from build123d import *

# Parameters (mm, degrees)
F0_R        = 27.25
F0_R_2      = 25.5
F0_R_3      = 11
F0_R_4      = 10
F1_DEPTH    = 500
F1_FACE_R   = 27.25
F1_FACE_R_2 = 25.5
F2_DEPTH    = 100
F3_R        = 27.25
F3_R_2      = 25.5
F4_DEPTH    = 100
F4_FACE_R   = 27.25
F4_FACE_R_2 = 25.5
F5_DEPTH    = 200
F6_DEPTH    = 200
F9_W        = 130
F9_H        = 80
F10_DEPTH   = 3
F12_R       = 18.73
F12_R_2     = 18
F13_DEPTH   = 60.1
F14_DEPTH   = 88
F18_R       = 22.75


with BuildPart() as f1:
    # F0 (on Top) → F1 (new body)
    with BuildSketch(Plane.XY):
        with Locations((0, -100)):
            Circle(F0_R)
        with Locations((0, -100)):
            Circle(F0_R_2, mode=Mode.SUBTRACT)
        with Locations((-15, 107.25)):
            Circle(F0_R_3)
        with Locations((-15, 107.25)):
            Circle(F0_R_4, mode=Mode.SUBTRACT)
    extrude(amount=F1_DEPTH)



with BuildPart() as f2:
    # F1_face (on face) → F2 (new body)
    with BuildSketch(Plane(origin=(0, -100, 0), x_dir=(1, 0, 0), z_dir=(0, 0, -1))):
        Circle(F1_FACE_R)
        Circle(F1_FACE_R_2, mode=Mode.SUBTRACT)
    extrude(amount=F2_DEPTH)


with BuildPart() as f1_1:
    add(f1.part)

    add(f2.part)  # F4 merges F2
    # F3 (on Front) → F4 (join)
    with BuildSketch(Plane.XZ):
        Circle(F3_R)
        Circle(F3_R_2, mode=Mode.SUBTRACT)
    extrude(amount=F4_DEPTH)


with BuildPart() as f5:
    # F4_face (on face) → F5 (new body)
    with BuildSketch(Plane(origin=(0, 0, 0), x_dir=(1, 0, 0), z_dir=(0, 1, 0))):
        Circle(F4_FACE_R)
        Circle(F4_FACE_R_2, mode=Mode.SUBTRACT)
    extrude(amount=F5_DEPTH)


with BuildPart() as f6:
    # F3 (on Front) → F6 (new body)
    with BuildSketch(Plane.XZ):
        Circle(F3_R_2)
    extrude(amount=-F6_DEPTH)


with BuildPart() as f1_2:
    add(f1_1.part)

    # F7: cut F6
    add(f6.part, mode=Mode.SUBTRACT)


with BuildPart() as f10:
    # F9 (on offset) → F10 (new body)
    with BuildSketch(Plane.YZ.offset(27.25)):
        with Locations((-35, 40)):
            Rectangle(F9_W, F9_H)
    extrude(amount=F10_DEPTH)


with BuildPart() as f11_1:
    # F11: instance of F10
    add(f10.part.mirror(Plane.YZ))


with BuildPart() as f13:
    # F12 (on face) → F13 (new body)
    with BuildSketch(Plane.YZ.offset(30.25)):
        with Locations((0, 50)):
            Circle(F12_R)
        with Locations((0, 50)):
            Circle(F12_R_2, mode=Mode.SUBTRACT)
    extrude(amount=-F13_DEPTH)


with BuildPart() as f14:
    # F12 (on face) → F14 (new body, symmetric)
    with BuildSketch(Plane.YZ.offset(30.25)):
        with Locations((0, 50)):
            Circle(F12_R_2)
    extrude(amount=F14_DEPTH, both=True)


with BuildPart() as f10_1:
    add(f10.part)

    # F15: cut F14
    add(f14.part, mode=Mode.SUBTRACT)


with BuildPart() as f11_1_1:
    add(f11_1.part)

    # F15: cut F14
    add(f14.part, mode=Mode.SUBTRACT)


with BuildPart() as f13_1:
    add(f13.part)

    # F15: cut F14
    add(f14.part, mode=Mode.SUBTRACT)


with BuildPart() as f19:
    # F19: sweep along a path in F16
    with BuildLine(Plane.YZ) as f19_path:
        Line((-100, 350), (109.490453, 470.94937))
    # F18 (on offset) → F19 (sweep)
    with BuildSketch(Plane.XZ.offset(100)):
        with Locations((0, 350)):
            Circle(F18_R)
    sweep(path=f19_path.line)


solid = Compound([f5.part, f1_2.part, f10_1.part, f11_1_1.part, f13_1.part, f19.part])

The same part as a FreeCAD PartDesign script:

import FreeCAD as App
import Part
import Sketcher
from FreeCAD import Vector
Q = App.Units.Quantity


def add_polygon(sketch, points):
    """Adds a closed chain of lines whose ends are joined by coincident constraints."""
    first, n = sketch.GeometryCount, len(points)
    for a, b in zip(points, points[1:] + points[:1]):
        sketch.addGeometry(Part.LineSegment(App.Vector(*a, 0), App.Vector(*b, 0)), False)
    for i in range(n):
        sketch.addConstraint(Sketcher.Constraint("Coincident", first + i, 2, first + (i + 1) % n, 1))

doc = App.newDocument("Part")
body = doc.addObject("PartDesign::Body", "Body")
body.AllowCompound = True

# Sketch on XY plane
sketch1 = doc.addObject("Sketcher::SketchObject", "Sketch")
body.addObject(sketch1)
sketch1.AttachmentSupport = (doc.XY_Plane, [""])
sketch1.MapMode = "FlatFace"
sketch1.addGeometry([
    Part.Circle(Vector(0, -100, 0), Vector(0, 0, 1), 27),
    Part.Circle(Vector(0, -100, 0), Vector(0, 0, 1), 26),
    Part.Circle(Vector(-15, 107, 0), Vector(0, 0, 1), 11),
    Part.Circle(Vector(-15, 107, 0), Vector(0, 0, 1), 10),
], False)
sketch1.addConstraint([
    Sketcher.Constraint("Coincident", 1, 3, 0, 3),
    Sketcher.Constraint("Coincident", 3, 3, 2, 3),
    Sketcher.Constraint("PointOnObject", 0, 3, -2),
    Sketcher.Constraint("Diameter", 1, Q("51 mm")),
    Sketcher.Constraint("Diameter", 2, Q("22 mm")),
    Sketcher.Constraint("Diameter", 3, Q("20 mm")),
    Sketcher.Constraint("Diameter", 0, Q("54.5 mm")),
    Sketcher.Constraint("DistanceY", 0, 3, -1, 1, Q("100 mm")),
    Sketcher.Constraint("DistanceX", 2, 3, -1, 1, Q("15 mm")),
    Sketcher.Constraint("DistanceY", -1, 1, 2, 3, Q("107.25 mm")),
])
pad1 = doc.addObject("PartDesign::Pad", "Pad")
body.addObject(pad1)
pad1.Profile = sketch1
pad1.Length = 500
body2 = doc.addObject("PartDesign::Body", "Body001")

# Sketch on XY plane
sketch2 = doc.addObject("Sketcher::SketchObject", "Sketch001")
body2.addObject(sketch2)
sketch2.AttachmentSupport = (doc.getObject("XY_Plane001"), [""])
sketch2.MapMode = "FlatFace"
sketch2.addGeometry([
    Part.Circle(Vector(0, -100, 0), Vector(0, 0, 1), 27),
    Part.Circle(Vector(0, -100, 0), Vector(0, 0, 1), 26),
], False)
sketch2.addConstraint([
    Sketcher.Constraint("Coincident", 1, 3, 0, 3),
    Sketcher.Constraint("PointOnObject", 0, 3, -2),
    Sketcher.Constraint("Diameter", 1, Q("51 mm")),
    Sketcher.Constraint("Diameter", 0, Q("54.5 mm")),
    Sketcher.Constraint("DistanceY", 0, 3, -1, 1, Q("100 mm")),
])
pad2 = doc.addObject("PartDesign::Pad", "Pad001")
body2.addObject(pad2)
pad2.Profile = sketch2
pad2.Length = 100
pad2.Reversed = True
body.AllowCompound = True
doc.recompute()

boolean = doc.addObject("PartDesign::Boolean", "Boolean")
body.addObject(boolean)
boolean.Type = "Fuse"
boolean.addObjects([body2])

# Sketch on XZ plane
sketch3 = doc.addObject("Sketcher::SketchObject", "Sketch002")
body.addObject(sketch3)
sketch3.AttachmentSupport = (doc.XZ_Plane, [""])
sketch3.MapMode = "FlatFace"
sketch3.addGeometry([
    Part.Circle(Vector(0, 0, 0), Vector(0, 0, 1), 27),
    Part.Circle(Vector(0, 0, 0), Vector(0, 0, 1), 26),
], False)
sketch3.addConstraint([
    Sketcher.Constraint("Coincident", 0, 3, -1, 1),
    Sketcher.Constraint("Coincident", 1, 3, -1, 1),
    Sketcher.Constraint("Diameter", 1, Q("51 mm")),
    Sketcher.Constraint("Diameter", 0, Q("54.5 mm")),
])
pad3 = doc.addObject("PartDesign::Pad", "Pad002")
body.addObject(pad3)
pad3.Profile = sketch3
pad3.Length = 100
body3 = doc.addObject("PartDesign::Body", "Body002")

# Sketch on XZ plane
sketch4 = doc.addObject("Sketcher::SketchObject", "Sketch003")
body3.addObject(sketch4)
sketch4.AttachmentSupport = (doc.getObject("XZ_Plane002"), [""])
sketch4.MapMode = "FlatFace"
sketch4.addGeometry([
    Part.Circle(Vector(0, 0, 0), Vector(0, 0, 1), 27),
    Part.Circle(Vector(0, 0, 0), Vector(0, 0, 1), 26),
], False)
sketch4.addConstraint([
    Sketcher.Constraint("Coincident", 0, 3, -1, 1),
    Sketcher.Constraint("Coincident", 1, 3, -1, 1),
    Sketcher.Constraint("Diameter", 1, Q("51 mm")),
    Sketcher.Constraint("Diameter", 0, Q("54.5 mm")),
])
pad4 = doc.addObject("PartDesign::Pad", "Pad003")
body3.addObject(pad4)
pad4.Profile = sketch4
pad4.Length = 200
pad4.Reversed = True
body4 = doc.addObject("PartDesign::Body", "Body003")

# Sketch on XZ plane
sketch5 = doc.addObject("Sketcher::SketchObject", "Sketch004")
body4.addObject(sketch5)
sketch5.AttachmentSupport = (doc.getObject("XZ_Plane003"), [""])
sketch5.MapMode = "FlatFace"
sketch5.addGeometry(Part.Circle(Vector(0, 0, 0), Vector(0, 0, 1), 26), False)
sketch5.addConstraint([
    Sketcher.Constraint("Coincident", 0, 3, -1, 1),
    Sketcher.Constraint("Diameter", 0, Q("51 mm")),
])
pad5 = doc.addObject("PartDesign::Pad", "Pad004")
body4.addObject(pad5)
pad5.Profile = sketch5
pad5.Length = 200
pad5.Reversed = True
body.AllowCompound = True
doc.recompute()

boolean2 = doc.addObject("PartDesign::Boolean", "Boolean001")
body.addObject(boolean2)
boolean2.Type = "Cut"
boolean2.addObjects([body4])
body5 = doc.addObject("PartDesign::Body", "Body004")

# Sketch on YZ plane
sketch6 = doc.addObject("Sketcher::SketchObject", "Sketch005")
body5.addObject(sketch6)
sketch6.AttachmentSupport = (doc.getObject("YZ_Plane004"), [""])
sketch6.MapMode = "FlatFace"
sketch6.AttachmentOffset = App.Placement(Vector(0, 0, 27.25), App.Rotation())
add_polygon(sketch6, [(-100, 80), (-100, 0), (30, 0), (30, 80)])  # lines 0-3
sketch6.addConstraint([
    Sketcher.Constraint("Vertical", 0),
    Sketcher.Constraint("Horizontal", 1),
    Sketcher.Constraint("Vertical", 2),
    Sketcher.Constraint("Horizontal", 3),
    Sketcher.Constraint("PointOnObject", 0, 2, -1),
    Sketcher.Constraint("DistanceX", 1, 1, 1, 2, Q("130 mm")),
    Sketcher.Constraint("DistanceY", 0, 2, 0, 1, Q("80 mm")),
    Sketcher.Constraint("DistanceX", 0, 2, -1, 1, Q("100 mm")),
])
pad6 = doc.addObject("PartDesign::Pad", "Pad005")
body5.addObject(pad6)
pad6.Profile = sketch6
pad6.Length = 3
body6 = doc.addObject("PartDesign::Body", "Body005")
doc.recompute()

mirroring = doc.addObject("Part::Mirroring", "Mirroring")
mirroring.Source = body5
mirroring.Base = Vector(0, 0, 0)
mirroring.Normal = Vector(1, 0, 0)
body6.BaseFeature = mirroring
doc.recompute()
body7 = doc.addObject("PartDesign::Body", "Body006")

# Sketch on YZ plane
sketch7 = doc.addObject("Sketcher::SketchObject", "Sketch006")
body7.addObject(sketch7)
sketch7.AttachmentSupport = (doc.getObject("YZ_Plane006"), [""])
sketch7.MapMode = "FlatFace"
sketch7.AttachmentOffset = App.Placement(Vector(0, 0, 30.25), App.Rotation())
sketch7.addGeometry([
    Part.Circle(Vector(0, 50, 0), Vector(0, 0, 1), 19),
    Part.Circle(Vector(0, 50, 0), Vector(0, 0, 1), 18),
], False)
sketch7.addConstraint([
    Sketcher.Constraint("Coincident", 1, 3, 0, 3),
    Sketcher.Constraint("PointOnObject", 0, 3, -2),
    Sketcher.Constraint("Diameter", 1, Q("36 mm")),
    Sketcher.Constraint("Diameter", 0, Q("37.46 mm")),
    Sketcher.Constraint("DistanceY", -1, 1, 0, 3, Q("50 mm")),
])
pad7 = doc.addObject("PartDesign::Pad", "Pad006")
body7.addObject(pad7)
pad7.Profile = sketch7
pad7.Length = 60.1
pad7.Reversed = True
body8 = doc.addObject("PartDesign::Body", "Body007")

# Sketch on YZ plane
sketch8 = doc.addObject("Sketcher::SketchObject", "Sketch007")
body8.addObject(sketch8)
sketch8.AttachmentSupport = (doc.getObject("YZ_Plane007"), [""])
sketch8.MapMode = "FlatFace"
sketch8.AttachmentOffset = App.Placement(Vector(0, 0, 30.25), App.Rotation())
sketch8.addGeometry(Part.Circle(Vector(0, 50, 0), Vector(0, 0, 1), 18), False)
sketch8.addConstraint([
    Sketcher.Constraint("PointOnObject", 0, 3, -2),
    Sketcher.Constraint("Diameter", 0, Q("36 mm")),
    Sketcher.Constraint("DistanceY", -1, 1, 0, 3, Q("50 mm")),
])
pad8 = doc.addObject("PartDesign::Pad", "Pad007")
body8.addObject(pad8)
pad8.Profile = sketch8
pad8.Length = 176
pad8.Midplane = True
doc.recompute()

body9 = doc.addObject("PartDesign::Body", "Body008")
body9.BaseFeature = body8
boolean3 = doc.addObject("PartDesign::Boolean", "Boolean002")
body5.addObject(boolean3)
boolean3.Type = "Cut"
boolean3.addObjects([body9])
doc.recompute()

body10 = doc.addObject("PartDesign::Body", "Body009")
body10.BaseFeature = body8
boolean4 = doc.addObject("PartDesign::Boolean", "Boolean003")
body6.addObject(boolean4)
boolean4.Type = "Cut"
boolean4.addObjects([body10])
doc.recompute()

boolean5 = doc.addObject("PartDesign::Boolean", "Boolean004")
body7.addObject(boolean5)
boolean5.Type = "Cut"
boolean5.addObjects([body8])
body11 = doc.addObject("PartDesign::Body", "Body010")

# Sketch on XZ plane
sketch9 = doc.addObject("Sketcher::SketchObject", "Sketch008")
body11.addObject(sketch9)
sketch9.AttachmentSupport = (doc.getObject("XZ_Plane010"), [""])
sketch9.MapMode = "FlatFace"
sketch9.AttachmentOffset = App.Placement(Vector(0, 0, 100), App.Rotation())
sketch9.addGeometry(Part.Circle(Vector(0, 350, 0), Vector(0, 0, 1), 23), False)
sketch9.addConstraint([
    Sketcher.Constraint("PointOnObject", 0, 3, -2),
    Sketcher.Constraint("Diameter", 0, Q("45.5 mm")),
    Sketcher.Constraint("DistanceY", -1, 1, 0, 3, Q("350 mm")),
])

# Sketch on an angled plane
sketch10 = doc.addObject("Sketcher::SketchObject", "Sketch009")
body11.addObject(sketch10)
sketch10.Placement = App.Placement(Vector(0, -176.554446, 305.80127), App.Rotation(Vector(0, -0.866025403, -0.500000002), Vector(1.000000001, 0, 0), Vector(0, -0.500000002, 0.866025403), "ZXY"))
sketch10.addGeometry(Part.LineSegment(Vector(-88, 0, 0), Vector(-330, 0, 0)), False)
sketch10.addConstraint([
    Sketcher.Constraint("Horizontal", 0),
    Sketcher.Constraint("PointOnObject", 0, 1, -1),
    Sketcher.Constraint("DistanceX", 0, 2, 0, 1, Q("241.898739 mm")),
    Sketcher.Constraint("DistanceX", 0, 2, -1, 1, Q("330.2962 mm")),
])
doc.recompute()

additivepipe = doc.addObject("PartDesign::AdditivePipe", "AdditivePipe")
body11.addObject(additivepipe)
additivepipe.Profile = sketch9
additivepipe.Spine = (sketch10, ["Edge1"])
mirroring.Visibility = False

doc.recompute()
